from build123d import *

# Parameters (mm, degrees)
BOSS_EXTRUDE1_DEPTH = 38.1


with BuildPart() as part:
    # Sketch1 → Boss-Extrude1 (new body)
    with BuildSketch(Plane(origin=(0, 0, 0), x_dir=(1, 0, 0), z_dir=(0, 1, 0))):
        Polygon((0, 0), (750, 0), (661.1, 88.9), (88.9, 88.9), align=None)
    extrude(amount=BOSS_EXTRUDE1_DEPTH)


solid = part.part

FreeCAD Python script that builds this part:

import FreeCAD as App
import Part
import Sketcher
from FreeCAD import Vector

doc = App.newDocument("Part")
params = doc.addObject("Spreadsheet::Sheet", "Params")
for row, (alias, value) in enumerate([
    ("sketch1_width", "750 mm"),
    ("sketch1_width2", "572.2 mm"),
    ("pad1_length", "38.1 mm"),
], start=1):
    params.set(f"A{row}", alias)
    params.set(f"B{row}", "=" + value)
    params.setAlias(f"B{row}", alias)

body = doc.addObject("PartDesign::Body", "Body")

# Sketch on XZ plane
sketch1 = body.newObject("Sketcher::SketchObject", "Sketch")
sketch1.AttachmentSupport = (doc.getObject("XZ_Plane"), [""])
sketch1.MapMode = "FlatFace"
sketch1.addGeometry([
    Part.LineSegment(Vector(0, 0, 0), Vector(750, 0, 0)),
    Part.LineSegment(Vector(750, 0, 0), Vector(661, -89, 0)),
    Part.LineSegment(Vector(661, -89, 0), Vector(89, -89, 0)),
    Part.LineSegment(Vector(89, -89, 0), Vector(0, 0, 0)),
], False)
sketch1.addConstraint([
    Sketcher.Constraint("Coincident", 0, 2, 1, 1),
    Sketcher.Constraint("Coincident", 1, 2, 2, 1),
    Sketcher.Constraint("Coincident", 2, 2, 3, 1),
    Sketcher.Constraint("Coincident", 3, 2, 0, 1),
    Sketcher.Constraint("Horizontal", 0),
    Sketcher.Constraint("Horizontal", 2),
    Sketcher.Constraint("Coincident", 3, 2, -1, 1),
    Sketcher.Constraint("Perpendicular", 1, 3),
    Sketcher.Constraint("Equal", 1, 3),
    Sketcher.Constraint("DistanceX", 0, 1, 0, 2, 750.0),
    Sketcher.Constraint("DistanceX", 2, 2, 2, 1, 572.2),
])
sketch1.setExpression("Constraints[9]", "Params.sketch1_width")
sketch1.setExpression("Constraints[10]", "Params.sketch1_width2")
pad1 = body.newObject("PartDesign::Pad", "Pad")
pad1.Profile = sketch1
pad1.setExpression("Length", "Params.pad1_length")
pad1.Reversed = True

doc.recompute()
